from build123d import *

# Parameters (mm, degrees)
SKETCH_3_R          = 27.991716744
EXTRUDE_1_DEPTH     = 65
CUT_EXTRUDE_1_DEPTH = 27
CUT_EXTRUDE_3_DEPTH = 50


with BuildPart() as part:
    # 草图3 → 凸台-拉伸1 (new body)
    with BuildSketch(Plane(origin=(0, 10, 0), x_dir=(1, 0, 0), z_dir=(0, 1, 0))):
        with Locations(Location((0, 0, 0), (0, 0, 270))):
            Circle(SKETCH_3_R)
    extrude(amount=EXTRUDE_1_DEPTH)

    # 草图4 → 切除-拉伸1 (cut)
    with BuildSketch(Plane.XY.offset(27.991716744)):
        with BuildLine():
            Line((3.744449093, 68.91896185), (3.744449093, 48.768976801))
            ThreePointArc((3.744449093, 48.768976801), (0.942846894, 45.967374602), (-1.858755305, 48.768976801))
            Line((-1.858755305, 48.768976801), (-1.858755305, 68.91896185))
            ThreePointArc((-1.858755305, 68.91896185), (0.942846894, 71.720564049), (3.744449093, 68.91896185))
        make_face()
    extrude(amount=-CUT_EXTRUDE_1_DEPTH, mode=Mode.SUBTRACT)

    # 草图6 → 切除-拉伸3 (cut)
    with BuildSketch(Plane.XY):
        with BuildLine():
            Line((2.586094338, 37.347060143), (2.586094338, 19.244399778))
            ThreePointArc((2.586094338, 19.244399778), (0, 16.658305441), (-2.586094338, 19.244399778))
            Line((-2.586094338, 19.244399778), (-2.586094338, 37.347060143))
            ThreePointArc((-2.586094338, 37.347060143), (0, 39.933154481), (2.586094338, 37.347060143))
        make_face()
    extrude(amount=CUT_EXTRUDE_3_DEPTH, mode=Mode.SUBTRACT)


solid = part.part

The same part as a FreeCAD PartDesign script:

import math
import FreeCAD as App
import Part
import Sketcher
Q = App.Units.Quantity

doc = App.newDocument("Part")
body = doc.addObject("PartDesign::Body", "Body")

sketch1 = body.newObject("Sketcher::SketchObject", "Sketch")
sketch1.AttachmentSupport = (doc.getObject("XZ_Plane"), [""])
sketch1.MapMode = "FlatFace"
sketch1.AttachmentOffset = App.Placement(App.Vector(0, 0, -10), App.Rotation())
sketch1.addGeometry(Part.Circle(App.Vector(0, 0, 0), App.Vector(0, 0, 1), 28), False)
sketch1.addConstraint(Sketcher.Constraint("Coincident", 0, 3, -1, 1))
sketch1.addConstraint(Sketcher.Constraint("Diameter", 0, Q("55.983433 mm")))
pad1 = body.newObject("PartDesign::Pad", "Pad")
pad1.Profile = sketch1
pad1.Length = 65
pad1.Reversed = True

sketch2 = body.newObject("Sketcher::SketchObject", "Sketch001")
sketch2.AttachmentSupport = (doc.getObject("XY_Plane"), [""])
sketch2.MapMode = "FlatFace"
sketch2.AttachmentOffset = App.Placement(App.Vector(0, 0, 27.991717), App.Rotation())
sketch2.addGeometry(Part.LineSegment(App.Vector(3.7, 48.8, 0), App.Vector(3.7, 68.9, 0)), False)
sketch2.addGeometry(Part.ArcOfCircle(Part.Circle(App.Vector(0.9, 68.9, 0), App.Vector(0, 0, 1), 2.8), math.radians(0), math.radians(180)), False)
sketch2.addGeometry(Part.LineSegment(App.Vector(-1.9, 68.9, 0), App.Vector(-1.9, 48.8, 0)), False)
sketch2.addGeometry(Part.ArcOfCircle(Part.Circle(App.Vector(0.9, 48.8, 0), App.Vector(0, 0, 1), 2.8), math.radians(180), math.radians(360)), False)
sketch2.addConstraint(Sketcher.Constraint("Tangent", 0, 2, 1, 1))
sketch2.addConstraint(Sketcher.Constraint("Tangent", 1, 2, 2, 1))
sketch2.addConstraint(Sketcher.Constraint("Tangent", 2, 2, 3, 1))
sketch2.addConstraint(Sketcher.Constraint("Tangent", 3, 2, 0, 1))
sketch2.addConstraint(Sketcher.Constraint("Vertical", 0))
sketch2.addConstraint(Sketcher.Constraint("Vertical", 2))
sketch2.addConstraint(Sketcher.Constraint("Radius", 1, Q("2.801602 mm")))
sketch2.addConstraint(Sketcher.Constraint("DistanceY", 0, 1, 0, 2, Q("20.149985 mm")))
sketch2.addConstraint(Sketcher.Constraint("DistanceY", -1, 1, 1, 3, Q("68.918962 mm")))
sketch2.addConstraint(Sketcher.Constraint("DistanceX", -1, 1, 0, 2, Q("3.744449 mm")))
pocket1 = body.newObject("PartDesign::Pocket", "Pocket")
pocket1.Profile = sketch2
pocket1.Length = 27

sketch3 = body.newObject("Sketcher::SketchObject", "Sketch002")
sketch3.AttachmentSupport = (doc.getObject("XY_Plane"), [""])
sketch3.MapMode = "FlatFace"
sketch3.addGeometry(Part.LineSegment(App.Vector(2.6, 19.2, 0), App.Vector(2.6, 37.3, 0)), False)
sketch3.addGeometry(Part.ArcOfCircle(Part.Circle(App.Vector(0, 37.3, 0), App.Vector(0, 0, 1), 2.6), math.radians(0), math.radians(180)), False)
sketch3.addGeometry(Part.LineSegment(App.Vector(-2.6, 37.3, 0), App.Vector(-2.6, 19.2, 0)), False)
sketch3.addGeometry(Part.ArcOfCircle(Part.Circle(App.Vector(0, 19.2, 0), App.Vector(0, 0, 1), 2.6), math.radians(-180), math.radians(0)), False)
sketch3.addConstraint(Sketcher.Constraint("Tangent", 0, 2, 1, 1))
sketch3.addConstraint(Sketcher.Constraint("Tangent", 1, 2, 2, 1))
sketch3.addConstraint(Sketcher.Constraint("Tangent", 2, 2, 3, 1))
sketch3.addConstraint(Sketcher.Constraint("Tangent", 3, 2, 0, 1))
sketch3.addConstraint(Sketcher.Constraint("Vertical", 0))
sketch3.addConstraint(Sketcher.Constraint("Vertical", 2))
sketch3.addConstraint(Sketcher.Constraint("PointOnObject", 1, 3, -2))
sketch3.addConstraint(Sketcher.Constraint("Radius", 1, Q("2.586094 mm")))
sketch3.addConstraint(Sketcher.Constraint("DistanceY", 0, 1, 0, 2, Q("18.10266 mm")))
sketch3.addConstraint(Sketcher.Constraint("DistanceY", -1, 1, 3, 3, Q("19.2444 mm")))
pocket2 = body.newObject("PartDesign::Pocket", "Pocket001")
pocket2.Profile = sketch3
pocket2.Length = 50
pocket2.Reversed = True

doc.recompute()
